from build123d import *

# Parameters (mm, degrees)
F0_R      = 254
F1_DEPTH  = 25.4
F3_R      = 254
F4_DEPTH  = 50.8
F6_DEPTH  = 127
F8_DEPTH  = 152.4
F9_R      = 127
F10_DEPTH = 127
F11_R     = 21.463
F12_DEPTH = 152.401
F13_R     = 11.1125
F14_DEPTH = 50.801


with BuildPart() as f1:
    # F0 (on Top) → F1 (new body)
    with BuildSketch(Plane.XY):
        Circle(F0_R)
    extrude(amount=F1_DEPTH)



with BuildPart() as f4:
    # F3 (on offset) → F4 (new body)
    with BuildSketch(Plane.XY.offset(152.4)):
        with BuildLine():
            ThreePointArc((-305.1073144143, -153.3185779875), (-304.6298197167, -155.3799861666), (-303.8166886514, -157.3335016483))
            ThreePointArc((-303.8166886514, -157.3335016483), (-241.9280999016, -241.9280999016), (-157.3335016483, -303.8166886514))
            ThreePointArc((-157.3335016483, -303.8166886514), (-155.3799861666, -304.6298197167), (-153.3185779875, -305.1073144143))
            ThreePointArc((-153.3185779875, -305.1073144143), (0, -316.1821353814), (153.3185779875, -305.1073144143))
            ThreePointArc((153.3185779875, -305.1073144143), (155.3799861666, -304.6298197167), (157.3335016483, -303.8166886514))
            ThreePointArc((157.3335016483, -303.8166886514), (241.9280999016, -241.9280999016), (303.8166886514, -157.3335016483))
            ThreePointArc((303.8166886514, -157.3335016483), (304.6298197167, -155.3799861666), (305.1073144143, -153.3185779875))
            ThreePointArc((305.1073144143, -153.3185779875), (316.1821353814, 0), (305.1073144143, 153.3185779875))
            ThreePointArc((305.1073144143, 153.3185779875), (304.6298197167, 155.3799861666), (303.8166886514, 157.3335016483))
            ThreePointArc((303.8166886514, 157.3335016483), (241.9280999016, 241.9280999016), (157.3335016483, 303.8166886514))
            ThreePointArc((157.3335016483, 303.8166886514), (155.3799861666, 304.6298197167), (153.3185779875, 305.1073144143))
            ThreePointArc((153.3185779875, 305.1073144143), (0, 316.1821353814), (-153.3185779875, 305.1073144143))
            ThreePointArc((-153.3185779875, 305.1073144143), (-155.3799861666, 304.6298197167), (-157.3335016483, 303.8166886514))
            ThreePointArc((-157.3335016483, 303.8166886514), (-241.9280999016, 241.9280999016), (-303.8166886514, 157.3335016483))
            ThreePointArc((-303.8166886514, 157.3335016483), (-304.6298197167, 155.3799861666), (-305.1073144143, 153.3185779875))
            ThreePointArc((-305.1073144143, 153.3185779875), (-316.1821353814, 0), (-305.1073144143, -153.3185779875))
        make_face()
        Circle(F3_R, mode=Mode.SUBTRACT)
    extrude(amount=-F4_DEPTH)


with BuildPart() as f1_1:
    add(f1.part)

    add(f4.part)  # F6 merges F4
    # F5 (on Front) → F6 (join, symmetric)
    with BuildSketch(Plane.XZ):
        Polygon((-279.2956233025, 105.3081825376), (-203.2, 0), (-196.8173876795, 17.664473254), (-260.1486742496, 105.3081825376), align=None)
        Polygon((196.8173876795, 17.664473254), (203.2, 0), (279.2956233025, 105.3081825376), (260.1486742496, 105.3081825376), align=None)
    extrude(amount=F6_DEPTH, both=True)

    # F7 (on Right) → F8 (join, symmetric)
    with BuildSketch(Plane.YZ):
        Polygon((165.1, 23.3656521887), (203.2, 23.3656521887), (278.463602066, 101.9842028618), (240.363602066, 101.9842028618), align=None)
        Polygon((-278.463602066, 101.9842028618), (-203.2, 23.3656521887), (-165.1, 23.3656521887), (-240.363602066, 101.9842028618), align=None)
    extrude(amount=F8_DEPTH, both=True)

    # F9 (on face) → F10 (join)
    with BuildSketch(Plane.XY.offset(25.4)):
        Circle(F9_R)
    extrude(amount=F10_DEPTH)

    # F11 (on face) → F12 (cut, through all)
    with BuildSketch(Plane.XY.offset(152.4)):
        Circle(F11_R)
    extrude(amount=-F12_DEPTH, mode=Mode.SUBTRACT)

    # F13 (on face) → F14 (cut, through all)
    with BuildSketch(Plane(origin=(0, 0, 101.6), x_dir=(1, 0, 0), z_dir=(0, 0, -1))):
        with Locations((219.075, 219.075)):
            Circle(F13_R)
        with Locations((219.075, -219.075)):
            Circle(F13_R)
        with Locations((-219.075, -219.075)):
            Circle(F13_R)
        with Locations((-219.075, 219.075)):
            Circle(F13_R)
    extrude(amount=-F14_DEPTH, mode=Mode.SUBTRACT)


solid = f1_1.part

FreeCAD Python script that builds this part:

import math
import FreeCAD as App
import Part
import Sketcher
from FreeCAD import Vector
Q = App.Units.Quantity


def add_polygon(sketch, points):
    """Adds a closed chain of lines whose ends are joined by coincident constraints."""
    first, n = sketch.GeometryCount, len(points)
    for a, b in zip(points, points[1:] + points[:1]):
        sketch.addGeometry(Part.LineSegment(App.Vector(*a, 0), App.Vector(*b, 0)), False)
    for i in range(n):
        sketch.addConstraint(Sketcher.Constraint("Coincident", first + i, 2, first + (i + 1) % n, 1))

doc = App.newDocument("Part")
body = doc.addObject("PartDesign::Body", "Body")

sketch1 = body.newObject("Sketcher::SketchObject", "Sketch")
sketch1.AttachmentSupport = (doc.getObject("XY_Plane"), [""])
sketch1.MapMode = "FlatFace"
sketch1.addGeometry(Part.Circle(Vector(0, 0, 0), Vector(0, 0, 1), 254), False)
sketch1.addConstraint(Sketcher.Constraint("Coincident", 0, 3, -1, 1))
sketch1.addConstraint(Sketcher.Constraint("Diameter", 0, Q("20 in")))
pad1 = body.newObject("PartDesign::Pad", "Pad")
pad1.Profile = sketch1
pad1.Length = Q("1 in")
body2 = doc.addObject("PartDesign::Body", "Body001")

sketch2 = body2.newObject("Sketcher::SketchObject", "Sketch001")
sketch2.AttachmentSupport = (doc.getObject("XY_Plane001"), [""])
sketch2.MapMode = "FlatFace"
sketch2.AttachmentOffset = App.Placement(Vector(0, 0, 6 * 25.4), App.Rotation())
sketch2.addGeometry(Part.ArcOfCircle(Part.Circle(Vector(-292.539158, -151.493357, 0), Vector(0, 0, 1), 12.7), math.radians(-171.73694), math.radians(-152.622318)), False)
sketch2.addGeometry(Part.ArcOfCircle(Part.Circle(Vector(0, 0, 0), Vector(0, 0, 1), 342.138), math.radians(-152.622318), math.radians(-117.377682)), False)
sketch2.addGeometry(Part.ArcOfCircle(Part.Circle(Vector(-151.493357, -292.539158, 0), Vector(0, 0, 1), 12.7), math.radians(-117.377682), math.radians(-98.26306)), False)
sketch2.addGeometry(Part.ArcOfCircle(Part.Circle(Vector(0, 750.617865, 0), Vector(0, 0, 1), 1066.8), math.radians(-98.26306), math.radians(-81.73694)), False)
sketch2.addGeometry(Part.ArcOfCircle(Part.Circle(Vector(151.493357, -292.539158, 0), Vector(0, 0, 1), 12.7), math.radians(-81.73694), math.radians(-62.622318)), False)
sketch2.addGeometry(Part.ArcOfCircle(Part.Circle(Vector(0, 0, 0), Vector(0, 0, 1), 342.138), math.radians(-62.622318), math.radians(-27.377682)), False)
sketch2.addGeometry(Part.ArcOfCircle(Part.Circle(Vector(292.539158, -151.493357, 0), Vector(0, 0, 1), 12.7), math.radians(-27.377682), math.radians(-8.26306)), False)
sketch2.addGeometry(Part.ArcOfCircle(Part.Circle(Vector(-750.617865, 0, 0), Vector(0, 0, 1), 1066.8), math.radians(-8.26306), math.radians(8.26306)), False)
sketch2.addGeometry(Part.ArcOfCircle(Part.Circle(Vector(292.539158, 151.493357, 0), Vector(0, 0, 1), 12.7), math.radians(8.26306), math.radians(27.377682)), False)
sketch2.addGeometry(Part.ArcOfCircle(Part.Circle(Vector(0, 0, 0), Vector(0, 0, 1), 342.138), math.radians(27.377682), math.radians(62.622318)), False)
sketch2.addGeometry(Part.ArcOfCircle(Part.Circle(Vector(151.493357, 292.539158, 0), Vector(0, 0, 1), 12.7), math.radians(62.622318), math.radians(81.73694)), False)
sketch2.addGeometry(Part.ArcOfCircle(Part.Circle(Vector(0, -750.617865, 0), Vector(0, 0, 1), 1066.8), math.radians(81.73694), math.radians(98.26306)), False)
sketch2.addGeometry(Part.ArcOfCircle(Part.Circle(Vector(-151.493357, 292.539158, 0), Vector(0, 0, 1), 12.7), math.radians(98.26306), math.radians(117.377682)), False)
sketch2.addGeometry(Part.ArcOfCircle(Part.Circle(Vector(0, 0, 0), Vector(0, 0, 1), 342.138), math.radians(117.377682), math.radians(152.622318)), False)
sketch2.addGeometry(Part.ArcOfCircle(Part.Circle(Vector(-292.539158, 151.493357, 0), Vector(0, 0, 1), 12.7), math.radians(152.622318), math.radians(171.73694)), False)
sketch2.addGeometry(Part.ArcOfCircle(Part.Circle(Vector(750.617865, 0, 0), Vector(0, 0, 1), 1066.8), math.radians(171.73694), math.radians(188.26306)), False)
sketch2.addGeometry(Part.Circle(Vector(0, 0, 0), Vector(0, 0, 1), 254), False)
sketch2.addConstraint(Sketcher.Constraint("Tangent", 0, 2, 1, 1))
sketch2.addConstraint(Sketcher.Constraint("Tangent", 1, 2, 2, 1))
sketch2.addConstraint(Sketcher.Constraint("Tangent", 2, 2, 3, 1))
sketch2.addConstraint(Sketcher.Constraint("Tangent", 3, 2, 4, 1))
sketch2.addConstraint(Sketcher.Constraint("Tangent", 4, 2, 5, 1))
sketch2.addConstraint(Sketcher.Constraint("Tangent", 5, 2, 6, 1))
sketch2.addConstraint(Sketcher.Constraint("Tangent", 6, 2, 7, 1))
sketch2.addConstraint(Sketcher.Constraint("Tangent", 7, 2, 8, 1))
sketch2.addConstraint(Sketcher.Constraint("Tangent", 8, 2, 9, 1))
sketch2.addConstraint(Sketcher.Constraint("Tangent", 9, 2, 10, 1))
sketch2.addConstraint(Sketcher.Constraint("Tangent", 10, 2, 11, 1))
sketch2.addConstraint(Sketcher.Constraint("Tangent", 11, 2, 12, 1))
sketch2.addConstraint(Sketcher.Constraint("Tangent", 12, 2, 13, 1))
sketch2.addConstraint(Sketcher.Constraint("Tangent", 13, 2, 14, 1))
sketch2.addConstraint(Sketcher.Constraint("Tangent", 14, 2, 15, 1))
sketch2.addConstraint(Sketcher.Constraint("Tangent", 15, 2, 0, 1))
sketch2.addConstraint(Sketcher.Constraint("Coincident", 1, 3, -1, 1))
sketch2.addConstraint(Sketcher.Constraint("Coincident", 5, 3, -1, 1))
sketch2.addConstraint(Sketcher.Constraint("Coincident", 9, 3, -1, 1))
sketch2.addConstraint(Sketcher.Constraint("Coincident", 13, 3, -1, 1))
sketch2.addConstraint(Sketcher.Constraint("Coincident", 16, 3, -1, 1))
sketch2.addConstraint(Sketcher.Constraint("Equal", 0, 2))
sketch2.addConstraint(Sketcher.Constraint("Equal", 2, 4))
sketch2.addConstraint(Sketcher.Constraint("Equal", 1, 5))
sketch2.addConstraint(Sketcher.Constraint("Equal", 4, 6))
sketch2.addConstraint(Sketcher.Constraint("Equal", 3, 7))
sketch2.addConstraint(Sketcher.Constraint("Equal", 6, 8))
sketch2.addConstraint(Sketcher.Constraint("Equal", 5, 9))
sketch2.addConstraint(Sketcher.Constraint("Equal", 8, 10))
sketch2.addConstraint(Sketcher.Constraint("Equal", 7, 11))
sketch2.addConstraint(Sketcher.Constraint("Equal", 10, 12))
sketch2.addConstraint(Sketcher.Constraint("Equal", 9, 13))
sketch2.addConstraint(Sketcher.Constraint("Equal", 12, 14))
sketch2.addConstraint(Sketcher.Constraint("Equal", 11, 15))
sketch2.addConstraint(Sketcher.Constraint("Symmetric", 3, 3, 11, 3, -1, 1))
sketch2.addConstraint(Sketcher.Constraint("Symmetric", 7, 3, 15, 3, -1, 1))
sketch2.addConstraint(Sketcher.Constraint("PointOnObject", 3, 3, -2))
sketch2.addConstraint(Sketcher.Constraint("PointOnObject", 7, 3, -1))
sketch2.addConstraint(Sketcher.Constraint("Diameter", 16, Q("20 in")))
sketch2.addConstraint(Sketcher.Constraint("Radius", 3, Q("42 in")))
sketch2.addConstraint(Sketcher.Constraint("Radius", 0, Q("0.5 in")))
sketch2.addConstraint(Sketcher.Constraint("Radius", 1, Q("13.47 in")))
sketch2.addConstraint(Sketcher.Constraint("DistanceY", 0, 2, -1, 1, 157.333502))
sketch2.addConstraint(Sketcher.Constraint("DistanceX", -1, 1, 4, 2, 157.333502))
pad2 = body2.newObject("PartDesign::Pad", "Pad001")
pad2.Profile = sketch2
pad2.Length = Q("2 in")
pad2.Reversed = True
body.AllowCompound = True
doc.recompute()

boolean = body.newObject("PartDesign::Boolean", "Boolean")
boolean.Type = "Fuse"
boolean.addObjects([body2])

sketch3 = body.newObject("Sketcher::SketchObject", "Sketch002")
sketch3.AttachmentSupport = (doc.getObject("XZ_Plane"), [""])
sketch3.MapMode = "FlatFace"
add_polygon(sketch3, [(-279.295623, 105.308183), (-203.2, 0), (-196.817388, 17.664473), (-260.148674, 105.308183)])
add_polygon(sketch3, [(196.817388, 17.664473), (203.2, 0), (279.295623, 105.308183), (260.148674, 105.308183)])
sketch3.addConstraint(Sketcher.Constraint("Horizontal", 3))
sketch3.addConstraint(Sketcher.Constraint("Horizontal", 6))
sketch3.addConstraint(Sketcher.Constraint("Symmetric", 0, 2, 4, 2, -1, 1))
sketch3.addConstraint(Sketcher.Constraint("Symmetric", 3, 2, 5, 2, -2))
sketch3.addConstraint(Sketcher.Constraint("Symmetric", 1, 2, 7, 2, -2))
sketch3.addConstraint(Sketcher.Constraint("PointOnObject", 0, 2, -1))
sketch3.addConstraint(Sketcher.Constraint("Parallel", 0, 2))
sketch3.addConstraint(Sketcher.Constraint("Parallel", 5, 7))
sketch3.addConstraint(Sketcher.Constraint("DistanceX", 0, 2, -1, 1, Q("8 in")))
sketch3.addConstraint(Sketcher.Constraint("DistanceX", 3, 2, 3, 1, 19.146949))
sketch3.addConstraint(Sketcher.Constraint("Distance", 0, 129.924429))
sketch3.addConstraint(Sketcher.Constraint("Distance", 1, 18.782208))
sketch3.addConstraint(Sketcher.Constraint("DistanceY", 1, 2, 2, 2, 87.643709))
pad3 = body.newObject("PartDesign::Pad", "Pad002")
pad3.Profile = sketch3
pad3.Length = Q("10 in")
pad3.Midplane = True

sketch4 = body.newObject("Sketcher::SketchObject", "Sketch003")
sketch4.AttachmentSupport = (doc.getObject("YZ_Plane"), [""])
sketch4.MapMode = "FlatFace"
add_polygon(sketch4, [(165.1, 23.365652), (203.2, 23.365652), (278.463602, 101.984203), (240.363602, 101.984203)])
add_polygon(sketch4, [(-278.463602, 101.984203), (-203.2, 23.365652), (-165.1, 23.365652), (-240.363602, 101.984203)])
sketch4.addConstraint(Sketcher.Constraint("Horizontal", 0))
sketch4.addConstraint(Sketcher.Constraint("Horizontal", 2))
sketch4.addConstraint(Sketcher.Constraint("Horizontal", 5))
sketch4.addConstraint(Sketcher.Constraint("Horizontal", 7))
sketch4.addConstraint(Sketcher.Constraint("Symmetric", 0, 2, 4, 2, -2))
sketch4.addConstraint(Sketcher.Constraint("Symmetric", 2, 2, 6, 2, -2))
sketch4.addConstraint(Sketcher.Constraint("Parallel", 1, 3))
sketch4.addConstraint(Sketcher.Constraint("Parallel", 4, 6))
sketch4.addConstraint(Sketcher.Constraint("Equal", 2, 5))
sketch4.addConstraint(Sketcher.Constraint("DistanceX", 0, 1, 0, 2, Q("1.5 in")))
sketch4.addConstraint(Sketcher.Constraint("DistanceX", -1, 1, 0, 2, Q("8 in")))
sketch4.addConstraint(Sketcher.Constraint("Distance", 1, 108.836971))
sketch4.addConstraint(Sketcher.Constraint("DistanceY", 0, 2, 1, 2, 78.618551))
sketch4.addConstraint(Sketcher.Constraint("DistanceY", -1, 1, 0, 2, 23.365652))
pad4 = body.newObject("PartDesign::Pad", "Pad003")
pad4.Profile = sketch4
pad4.Length = Q("12 in")
pad4.Midplane = True

sketch5 = body.newObject("Sketcher::SketchObject", "Sketch004")
sketch5.AttachmentSupport = (doc.getObject("XY_Plane"), [""])
sketch5.MapMode = "FlatFace"
sketch5.AttachmentOffset = App.Placement(Vector(0, 0, 1 * 25.4), App.Rotation())
sketch5.addGeometry(Part.Circle(Vector(0, 0, 0), Vector(0, 0, 1), 127), False)
sketch5.addConstraint(Sketcher.Constraint("Coincident", 0, 3, -1, 1))
sketch5.addConstraint(Sketcher.Constraint("Diameter", 0, Q("10 in")))
pad5 = body.newObject("PartDesign::Pad", "Pad004")
pad5.Profile = sketch5
pad5.Length = Q("5 in")

sketch6 = body.newObject("Sketcher::SketchObject", "Sketch005")
sketch6.AttachmentSupport = (doc.getObject("XY_Plane"), [""])
sketch6.MapMode = "FlatFace"
sketch6.AttachmentOffset = App.Placement(Vector(0, 0, 6 * 25.4), App.Rotation())
sketch6.addGeometry(Part.Circle(Vector(0, 0, 0), Vector(0, 0, 1), 21.463), False)
sketch6.addConstraint(Sketcher.Constraint("Coincident", 0, 3, -1, 1))
sketch6.addConstraint(Sketcher.Constraint("Diameter", 0, Q("1.69 in")))
pocket1 = body.newObject("PartDesign::Pocket", "Pocket")
pocket1.Profile = sketch6
pocket1.Type = "ThroughAll"

sketch7 = body.newObject("Sketcher::SketchObject", "Sketch006")
sketch7.AttachmentSupport = (doc.getObject("XY_Plane"), [""])
sketch7.MapMode = "FlatFace"
sketch7.AttachmentOffset = App.Placement(Vector(0, 0, 4 * 25.4), App.Rotation())
sketch7.addGeometry(Part.Circle(Vector(219.075, -219.075, 0), Vector(0, 0, 1), 11.1125), False)
sketch7.addGeometry(Part.Circle(Vector(219.075, 219.075, 0), Vector(0, 0, 1), 11.1125), False)
sketch7.addGeometry(Part.Circle(Vector(-219.075, 219.075, 0), Vector(0, 0, 1), 11.1125), False)
sketch7.addGeometry(Part.Circle(Vector(-219.075, -219.075, 0), Vector(0, 0, 1), 11.1125), False)
sketch7.addConstraint(Sketcher.Constraint("Equal", 0, 1))
sketch7.addConstraint(Sketcher.Constraint("Equal", 1, 2))
sketch7.addConstraint(Sketcher.Constraint("Equal", 2, 3))
sketch7.addConstraint(Sketcher.Constraint("Symmetric", 0, 3, 2, 3, -1, 1))
sketch7.addConstraint(Sketcher.Constraint("Symmetric", 1, 3, 3, 3, -1, 1))
sketch7.addConstraint(Sketcher.Constraint("Symmetric", 1, 3, 2, 3, -2))
sketch7.addConstraint(Sketcher.Constraint("Diameter", 0, Q("0.875 in")))
sketch7.addConstraint(Sketcher.Constraint("DistanceY", 0, 3, 1, 3, Q("17.25 in")))
sketch7.addConstraint(Sketcher.Constraint("DistanceX", 2, 3, 1, 3, Q("17.25 in")))
pocket2 = body.newObject("PartDesign::Pocket", "Pocket001")
pocket2.Profile = sketch7
pocket2.Type = "ThroughAll"
pocket2.Reversed = True

doc.recompute()
